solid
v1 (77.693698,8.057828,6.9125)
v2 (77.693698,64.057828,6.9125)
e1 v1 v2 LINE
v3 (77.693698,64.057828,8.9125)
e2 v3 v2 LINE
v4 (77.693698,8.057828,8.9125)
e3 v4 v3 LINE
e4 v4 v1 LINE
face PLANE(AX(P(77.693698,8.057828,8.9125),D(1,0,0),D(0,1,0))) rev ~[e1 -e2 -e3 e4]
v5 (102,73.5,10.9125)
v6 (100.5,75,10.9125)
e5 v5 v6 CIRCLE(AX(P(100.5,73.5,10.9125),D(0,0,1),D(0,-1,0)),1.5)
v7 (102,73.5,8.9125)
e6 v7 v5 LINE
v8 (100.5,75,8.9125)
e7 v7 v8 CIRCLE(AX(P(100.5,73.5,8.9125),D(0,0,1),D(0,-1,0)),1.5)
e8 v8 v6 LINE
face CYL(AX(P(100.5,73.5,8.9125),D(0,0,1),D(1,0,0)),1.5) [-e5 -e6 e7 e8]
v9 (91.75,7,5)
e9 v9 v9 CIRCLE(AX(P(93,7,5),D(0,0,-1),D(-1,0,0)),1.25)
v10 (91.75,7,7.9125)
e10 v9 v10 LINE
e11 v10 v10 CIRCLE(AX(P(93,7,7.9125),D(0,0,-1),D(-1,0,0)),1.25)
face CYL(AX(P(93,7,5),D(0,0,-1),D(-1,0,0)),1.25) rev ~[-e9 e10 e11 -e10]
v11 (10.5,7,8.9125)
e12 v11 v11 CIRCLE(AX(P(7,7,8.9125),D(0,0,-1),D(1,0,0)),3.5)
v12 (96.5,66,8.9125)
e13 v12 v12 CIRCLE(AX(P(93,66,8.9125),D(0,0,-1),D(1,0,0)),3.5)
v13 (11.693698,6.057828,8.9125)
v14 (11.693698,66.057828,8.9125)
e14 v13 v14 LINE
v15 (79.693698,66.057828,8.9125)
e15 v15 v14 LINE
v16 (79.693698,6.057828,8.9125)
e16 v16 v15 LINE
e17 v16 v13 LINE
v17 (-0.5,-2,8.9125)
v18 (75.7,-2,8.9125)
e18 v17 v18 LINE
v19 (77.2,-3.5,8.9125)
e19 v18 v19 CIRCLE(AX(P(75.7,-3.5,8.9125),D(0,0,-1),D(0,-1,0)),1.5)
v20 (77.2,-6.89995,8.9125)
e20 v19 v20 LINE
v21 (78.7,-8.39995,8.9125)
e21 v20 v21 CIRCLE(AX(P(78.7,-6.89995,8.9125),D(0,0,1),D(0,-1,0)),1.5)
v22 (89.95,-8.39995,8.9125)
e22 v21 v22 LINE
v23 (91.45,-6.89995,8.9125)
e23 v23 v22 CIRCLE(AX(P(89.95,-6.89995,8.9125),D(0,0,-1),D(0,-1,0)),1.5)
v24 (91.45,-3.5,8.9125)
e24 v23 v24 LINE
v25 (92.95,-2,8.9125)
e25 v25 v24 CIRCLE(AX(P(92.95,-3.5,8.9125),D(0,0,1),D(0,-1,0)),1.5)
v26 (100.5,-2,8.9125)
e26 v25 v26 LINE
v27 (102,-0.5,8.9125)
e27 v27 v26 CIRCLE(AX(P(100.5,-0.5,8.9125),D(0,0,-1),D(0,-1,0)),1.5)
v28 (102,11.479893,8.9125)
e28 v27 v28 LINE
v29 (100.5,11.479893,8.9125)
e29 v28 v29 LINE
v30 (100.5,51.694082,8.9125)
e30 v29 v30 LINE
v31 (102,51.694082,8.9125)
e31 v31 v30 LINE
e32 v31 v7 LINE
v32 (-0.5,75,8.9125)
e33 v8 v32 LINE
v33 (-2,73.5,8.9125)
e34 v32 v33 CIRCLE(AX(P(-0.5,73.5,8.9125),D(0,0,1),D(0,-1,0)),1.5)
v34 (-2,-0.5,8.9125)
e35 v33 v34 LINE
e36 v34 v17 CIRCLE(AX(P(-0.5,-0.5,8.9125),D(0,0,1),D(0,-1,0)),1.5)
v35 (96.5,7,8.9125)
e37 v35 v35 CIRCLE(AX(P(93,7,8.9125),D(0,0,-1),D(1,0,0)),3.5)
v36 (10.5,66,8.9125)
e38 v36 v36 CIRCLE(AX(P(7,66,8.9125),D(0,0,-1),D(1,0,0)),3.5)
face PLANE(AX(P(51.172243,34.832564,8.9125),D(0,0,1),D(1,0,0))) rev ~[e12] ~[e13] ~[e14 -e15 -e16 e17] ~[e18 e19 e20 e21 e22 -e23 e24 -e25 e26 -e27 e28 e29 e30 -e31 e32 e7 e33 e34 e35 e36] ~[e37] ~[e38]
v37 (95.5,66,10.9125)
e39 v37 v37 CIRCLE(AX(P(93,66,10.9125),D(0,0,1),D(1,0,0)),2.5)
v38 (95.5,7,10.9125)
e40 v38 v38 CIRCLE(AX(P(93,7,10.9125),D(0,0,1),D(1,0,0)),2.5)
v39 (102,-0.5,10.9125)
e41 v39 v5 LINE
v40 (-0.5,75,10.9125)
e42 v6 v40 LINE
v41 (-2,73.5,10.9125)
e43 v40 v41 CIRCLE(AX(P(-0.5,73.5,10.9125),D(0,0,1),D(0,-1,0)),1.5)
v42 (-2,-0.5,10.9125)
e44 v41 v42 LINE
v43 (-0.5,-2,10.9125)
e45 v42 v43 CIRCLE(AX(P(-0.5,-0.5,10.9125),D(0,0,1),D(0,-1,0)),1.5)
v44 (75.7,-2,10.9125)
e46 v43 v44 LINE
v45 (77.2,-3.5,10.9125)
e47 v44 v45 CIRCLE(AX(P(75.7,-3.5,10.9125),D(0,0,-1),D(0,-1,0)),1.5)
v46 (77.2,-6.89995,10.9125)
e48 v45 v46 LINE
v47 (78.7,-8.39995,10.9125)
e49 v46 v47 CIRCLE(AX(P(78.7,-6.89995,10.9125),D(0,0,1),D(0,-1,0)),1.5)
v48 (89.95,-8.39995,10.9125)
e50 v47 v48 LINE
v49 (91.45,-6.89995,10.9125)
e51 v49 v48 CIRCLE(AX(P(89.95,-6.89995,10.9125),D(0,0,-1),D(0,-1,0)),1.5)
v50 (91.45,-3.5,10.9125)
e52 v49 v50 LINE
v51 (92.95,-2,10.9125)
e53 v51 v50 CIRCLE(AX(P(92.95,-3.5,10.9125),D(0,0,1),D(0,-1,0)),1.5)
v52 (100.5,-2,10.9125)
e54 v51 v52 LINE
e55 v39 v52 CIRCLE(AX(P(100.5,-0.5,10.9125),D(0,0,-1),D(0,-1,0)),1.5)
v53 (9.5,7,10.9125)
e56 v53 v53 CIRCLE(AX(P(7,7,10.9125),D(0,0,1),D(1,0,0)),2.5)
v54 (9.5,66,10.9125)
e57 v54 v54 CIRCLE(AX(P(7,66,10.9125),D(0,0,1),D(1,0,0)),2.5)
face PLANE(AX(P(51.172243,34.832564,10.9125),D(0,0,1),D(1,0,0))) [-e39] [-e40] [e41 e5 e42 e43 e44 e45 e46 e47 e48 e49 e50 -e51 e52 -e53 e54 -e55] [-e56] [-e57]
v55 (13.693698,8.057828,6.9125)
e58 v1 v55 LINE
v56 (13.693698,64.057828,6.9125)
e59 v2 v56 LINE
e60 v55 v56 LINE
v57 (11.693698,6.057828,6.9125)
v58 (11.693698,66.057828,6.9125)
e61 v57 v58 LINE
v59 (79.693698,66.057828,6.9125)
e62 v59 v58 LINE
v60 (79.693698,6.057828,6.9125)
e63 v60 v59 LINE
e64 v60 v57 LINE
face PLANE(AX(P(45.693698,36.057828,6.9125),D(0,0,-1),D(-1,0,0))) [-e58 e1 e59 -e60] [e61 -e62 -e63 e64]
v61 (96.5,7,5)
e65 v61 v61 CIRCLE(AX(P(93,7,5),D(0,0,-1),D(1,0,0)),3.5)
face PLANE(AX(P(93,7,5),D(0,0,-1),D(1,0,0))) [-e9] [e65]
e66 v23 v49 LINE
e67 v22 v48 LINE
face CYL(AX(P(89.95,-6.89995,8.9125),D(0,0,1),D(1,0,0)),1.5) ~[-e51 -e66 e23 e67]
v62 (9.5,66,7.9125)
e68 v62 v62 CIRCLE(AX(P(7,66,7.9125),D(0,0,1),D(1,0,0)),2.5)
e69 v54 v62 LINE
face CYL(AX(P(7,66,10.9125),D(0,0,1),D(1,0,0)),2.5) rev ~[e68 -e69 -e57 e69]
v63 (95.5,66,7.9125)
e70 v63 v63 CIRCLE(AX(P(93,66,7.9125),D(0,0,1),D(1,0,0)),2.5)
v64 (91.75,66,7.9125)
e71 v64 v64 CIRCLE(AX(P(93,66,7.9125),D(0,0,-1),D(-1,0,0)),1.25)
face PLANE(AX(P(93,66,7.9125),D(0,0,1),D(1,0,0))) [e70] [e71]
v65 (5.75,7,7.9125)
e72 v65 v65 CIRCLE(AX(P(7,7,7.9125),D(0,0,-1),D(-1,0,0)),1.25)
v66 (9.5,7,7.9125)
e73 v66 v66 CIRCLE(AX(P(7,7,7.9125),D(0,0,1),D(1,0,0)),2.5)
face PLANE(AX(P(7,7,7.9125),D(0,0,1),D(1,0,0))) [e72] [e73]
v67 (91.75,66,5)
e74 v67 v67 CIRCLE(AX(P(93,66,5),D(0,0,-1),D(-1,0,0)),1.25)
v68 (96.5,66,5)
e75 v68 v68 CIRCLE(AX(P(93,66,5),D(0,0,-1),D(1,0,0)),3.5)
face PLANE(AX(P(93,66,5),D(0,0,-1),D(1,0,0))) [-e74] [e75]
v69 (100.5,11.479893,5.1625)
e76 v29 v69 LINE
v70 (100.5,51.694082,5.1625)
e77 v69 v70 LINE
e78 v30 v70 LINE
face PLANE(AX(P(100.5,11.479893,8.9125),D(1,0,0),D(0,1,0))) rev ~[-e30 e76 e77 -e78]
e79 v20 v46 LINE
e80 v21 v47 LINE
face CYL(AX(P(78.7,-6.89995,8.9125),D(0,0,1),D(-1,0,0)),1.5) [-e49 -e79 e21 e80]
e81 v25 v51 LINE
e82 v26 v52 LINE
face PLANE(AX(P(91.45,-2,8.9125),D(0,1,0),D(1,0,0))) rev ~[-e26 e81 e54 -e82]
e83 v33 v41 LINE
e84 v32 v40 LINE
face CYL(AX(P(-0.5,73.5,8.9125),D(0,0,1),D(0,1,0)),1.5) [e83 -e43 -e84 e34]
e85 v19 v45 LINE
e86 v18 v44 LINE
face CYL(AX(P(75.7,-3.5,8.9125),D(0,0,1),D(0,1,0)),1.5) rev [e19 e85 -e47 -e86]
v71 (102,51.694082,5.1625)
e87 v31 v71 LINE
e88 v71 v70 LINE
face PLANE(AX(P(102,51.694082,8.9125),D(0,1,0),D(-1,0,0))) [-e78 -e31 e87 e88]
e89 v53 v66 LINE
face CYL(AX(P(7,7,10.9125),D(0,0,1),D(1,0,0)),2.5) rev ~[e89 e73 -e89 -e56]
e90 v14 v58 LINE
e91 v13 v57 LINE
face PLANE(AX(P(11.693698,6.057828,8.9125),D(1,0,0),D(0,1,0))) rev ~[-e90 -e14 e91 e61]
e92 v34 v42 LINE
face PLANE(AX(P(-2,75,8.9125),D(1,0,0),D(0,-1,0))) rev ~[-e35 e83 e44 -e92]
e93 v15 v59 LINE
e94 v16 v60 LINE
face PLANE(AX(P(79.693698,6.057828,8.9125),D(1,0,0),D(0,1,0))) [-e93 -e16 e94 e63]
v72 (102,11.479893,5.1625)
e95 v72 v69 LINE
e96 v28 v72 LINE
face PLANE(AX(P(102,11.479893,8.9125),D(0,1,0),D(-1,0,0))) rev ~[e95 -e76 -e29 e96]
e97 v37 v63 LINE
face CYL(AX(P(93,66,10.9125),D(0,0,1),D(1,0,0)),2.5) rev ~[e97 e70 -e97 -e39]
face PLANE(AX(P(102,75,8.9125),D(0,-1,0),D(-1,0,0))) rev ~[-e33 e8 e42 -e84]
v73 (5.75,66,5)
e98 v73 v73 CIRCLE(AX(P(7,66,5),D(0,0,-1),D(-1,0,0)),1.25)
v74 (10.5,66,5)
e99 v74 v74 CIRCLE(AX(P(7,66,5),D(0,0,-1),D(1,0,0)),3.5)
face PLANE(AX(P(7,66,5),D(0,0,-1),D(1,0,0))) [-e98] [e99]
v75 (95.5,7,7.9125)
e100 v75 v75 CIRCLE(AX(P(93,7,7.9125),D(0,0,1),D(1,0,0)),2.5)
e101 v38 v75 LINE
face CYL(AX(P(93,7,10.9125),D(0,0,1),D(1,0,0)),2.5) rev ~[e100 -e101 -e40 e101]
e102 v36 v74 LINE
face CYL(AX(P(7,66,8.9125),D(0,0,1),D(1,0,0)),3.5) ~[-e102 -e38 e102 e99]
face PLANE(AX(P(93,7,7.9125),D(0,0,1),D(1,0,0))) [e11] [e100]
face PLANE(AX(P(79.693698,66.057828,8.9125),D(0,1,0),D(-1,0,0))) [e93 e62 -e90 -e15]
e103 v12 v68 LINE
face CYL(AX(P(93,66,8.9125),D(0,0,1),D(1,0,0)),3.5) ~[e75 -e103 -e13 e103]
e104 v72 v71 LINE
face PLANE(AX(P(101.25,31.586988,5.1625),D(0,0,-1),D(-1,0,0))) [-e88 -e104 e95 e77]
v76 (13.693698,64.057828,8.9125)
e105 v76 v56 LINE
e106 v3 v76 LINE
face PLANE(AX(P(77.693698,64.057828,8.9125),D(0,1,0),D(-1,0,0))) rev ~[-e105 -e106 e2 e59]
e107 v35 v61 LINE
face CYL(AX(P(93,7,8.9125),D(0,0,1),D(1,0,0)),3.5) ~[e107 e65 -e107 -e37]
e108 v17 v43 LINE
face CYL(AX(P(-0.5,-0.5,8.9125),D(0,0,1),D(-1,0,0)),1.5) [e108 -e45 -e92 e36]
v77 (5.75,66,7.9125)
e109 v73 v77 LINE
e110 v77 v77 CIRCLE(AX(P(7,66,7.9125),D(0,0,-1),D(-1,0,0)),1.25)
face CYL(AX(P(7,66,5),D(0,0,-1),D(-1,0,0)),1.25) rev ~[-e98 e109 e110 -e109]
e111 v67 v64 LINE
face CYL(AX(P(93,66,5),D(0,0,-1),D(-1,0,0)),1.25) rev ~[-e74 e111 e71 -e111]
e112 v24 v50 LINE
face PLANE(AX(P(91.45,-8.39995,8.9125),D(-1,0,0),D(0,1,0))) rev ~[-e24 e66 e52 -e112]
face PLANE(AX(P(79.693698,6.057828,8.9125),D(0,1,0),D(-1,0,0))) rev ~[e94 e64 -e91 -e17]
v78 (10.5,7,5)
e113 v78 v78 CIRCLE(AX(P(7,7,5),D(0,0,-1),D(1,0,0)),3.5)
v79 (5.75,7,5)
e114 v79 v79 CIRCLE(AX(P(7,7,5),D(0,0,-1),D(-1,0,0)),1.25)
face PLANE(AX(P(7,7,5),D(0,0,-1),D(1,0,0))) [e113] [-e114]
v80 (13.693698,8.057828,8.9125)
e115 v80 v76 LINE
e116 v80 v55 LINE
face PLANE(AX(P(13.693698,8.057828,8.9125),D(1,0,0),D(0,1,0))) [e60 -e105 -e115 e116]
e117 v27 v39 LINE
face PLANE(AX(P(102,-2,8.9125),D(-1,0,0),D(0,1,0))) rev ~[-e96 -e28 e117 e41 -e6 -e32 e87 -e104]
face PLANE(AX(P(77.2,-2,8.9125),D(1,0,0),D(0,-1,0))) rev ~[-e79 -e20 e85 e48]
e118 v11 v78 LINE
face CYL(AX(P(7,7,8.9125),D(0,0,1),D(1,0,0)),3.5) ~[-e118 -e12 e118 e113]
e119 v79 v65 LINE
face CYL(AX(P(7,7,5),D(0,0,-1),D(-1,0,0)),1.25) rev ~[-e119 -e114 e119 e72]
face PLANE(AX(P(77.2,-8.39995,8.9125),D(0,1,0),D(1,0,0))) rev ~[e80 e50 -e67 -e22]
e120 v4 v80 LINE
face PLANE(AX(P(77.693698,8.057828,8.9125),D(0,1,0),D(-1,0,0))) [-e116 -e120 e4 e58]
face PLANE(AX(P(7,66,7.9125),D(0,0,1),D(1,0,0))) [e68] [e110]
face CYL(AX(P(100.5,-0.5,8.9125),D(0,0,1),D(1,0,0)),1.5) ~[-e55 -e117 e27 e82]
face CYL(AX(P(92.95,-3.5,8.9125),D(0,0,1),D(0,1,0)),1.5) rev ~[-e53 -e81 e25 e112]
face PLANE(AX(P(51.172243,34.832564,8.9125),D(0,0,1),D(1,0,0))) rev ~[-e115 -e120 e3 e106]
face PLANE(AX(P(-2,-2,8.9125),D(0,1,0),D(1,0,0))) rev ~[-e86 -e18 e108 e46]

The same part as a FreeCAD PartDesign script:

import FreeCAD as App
import Part
import Sketcher

V = App.Vector
Q = App.Units.Quantity


def edges_at(feature, points):
    """Names of the edges that pass closest to the given points."""
    edges = feature.Shape.Edges
    near = lambda p: min(range(len(edges)), key=lambda i: edges[i].distToShape(Part.Vertex(*p))[0])
    return sorted({f"Edge{near(p) + 1}" for p in points})

doc = App.newDocument("Part")
body = doc.addObject("PartDesign::Body", "Body")

sketch1 = body.newObject("Sketcher::SketchObject", "Sketch")
sketch1.AttachmentSupport = (doc.getObject("XY_Plane"), [""])
sketch1.MapMode = "FlatFace"
sketch1.AttachmentOffset = App.Placement(V(0, 0, 8.9125), App.Rotation())
sketch1.addGeometry(Part.LineSegment(V(102, -2, 0), V(102, 75, 0)), False)
sketch1.addGeometry(Part.LineSegment(V(102, 75, 0), V(-2, 75, 0)), False)
sketch1.addGeometry(Part.LineSegment(V(-2, 75, 0), V(-2, -2, 0)), False)
sketch1.addGeometry(Part.LineSegment(V(-2, -2, 0), V(77, -2, 0)), False)
sketch1.addGeometry(Part.LineSegment(V(77, -2, 0), V(77, -8, 0)), False)
sketch1.addGeometry(Part.LineSegment(V(77, -8, 0), V(91, -8, 0)), False)
sketch1.addGeometry(Part.LineSegment(V(91, -8, 0), V(91, -2, 0)), False)
sketch1.addGeometry(Part.LineSegment(V(91, -2, 0), V(102, -2, 0)), False)
sketch1.addConstraint(Sketcher.Constraint("Coincident", 0, 2, 1, 1))
sketch1.addConstraint(Sketcher.Constraint("Coincident", 1, 2, 2, 1))
sketch1.addConstraint(Sketcher.Constraint("Coincident", 2, 2, 3, 1))
sketch1.addConstraint(Sketcher.Constraint("Coincident", 3, 2, 4, 1))
sketch1.addConstraint(Sketcher.Constraint("Coincident", 4, 2, 5, 1))
sketch1.addConstraint(Sketcher.Constraint("Coincident", 5, 2, 6, 1))
sketch1.addConstraint(Sketcher.Constraint("Coincident", 6, 2, 7, 1))
sketch1.addConstraint(Sketcher.Constraint("Coincident", 7, 2, 0, 1))
sketch1.addConstraint(Sketcher.Constraint("Vertical", 0))
sketch1.addConstraint(Sketcher.Constraint("Horizontal", 1))
sketch1.addConstraint(Sketcher.Constraint("Vertical", 2))
sketch1.addConstraint(Sketcher.Constraint("Horizontal", 3))
sketch1.addConstraint(Sketcher.Constraint("Vertical", 4))
sketch1.addConstraint(Sketcher.Constraint("Horizontal", 5))
sketch1.addConstraint(Sketcher.Constraint("Vertical", 6))
sketch1.addConstraint(Sketcher.Constraint("Horizontal", 7))
sketch1.addConstraint(Sketcher.Constraint("Horizontal", 3, 2, 6, 2))
sketch1.addConstraint(Sketcher.Constraint("DistanceX", 1, 2, 1, 1, Q("104 mm")))
sketch1.addConstraint(Sketcher.Constraint("DistanceY", 0, 1, 0, 2, Q("77 mm")))
sketch1.addConstraint(Sketcher.Constraint("DistanceX", 3, 1, 3, 2, Q("79.2 mm")))
sketch1.addConstraint(Sketcher.Constraint("DistanceX", -1, 1, 0, 2, Q("102 mm")))
sketch1.addConstraint(Sketcher.Constraint("DistanceY", -1, 1, 0, 2, Q("75 mm")))
sketch1.addConstraint(Sketcher.Constraint("DistanceX", 5, 1, 5, 2, Q("14.25 mm")))
sketch1.addConstraint(Sketcher.Constraint("DistanceY", 4, 2, 4, 1, Q("6.39995 mm")))
pad1 = body.newObject("PartDesign::Pad", "Pad")
pad1.Profile = sketch1
pad1.Length = 2

sketch2 = body.newObject("Sketcher::SketchObject", "Sketch001")
sketch2.AttachmentSupport = (doc.getObject("XY_Plane"), [""])
sketch2.MapMode = "FlatFace"
sketch2.AttachmentOffset = App.Placement(V(0, 0, 8.9125), App.Rotation())
sketch2.addGeometry(Part.LineSegment(V(102, 51.7, 0), V(102, 11.5, 0)), False)
sketch2.addGeometry(Part.LineSegment(V(102, 11.5, 0), V(100.5, 11.5, 0)), False)
sketch2.addGeometry(Part.LineSegment(V(100.5, 11.5, 0), V(100.5, 51.7, 0)), False)
sketch2.addGeometry(Part.LineSegment(V(100.5, 51.7, 0), V(102, 51.7, 0)), False)
sketch2.addConstraint(Sketcher.Constraint("Coincident", 0, 2, 1, 1))
sketch2.addConstraint(Sketcher.Constraint("Coincident", 1, 2, 2, 1))
sketch2.addConstraint(Sketcher.Constraint("Coincident", 2, 2, 3, 1))
sketch2.addConstraint(Sketcher.Constraint("Coincident", 3, 2, 0, 1))
sketch2.addConstraint(Sketcher.Constraint("Vertical", 0))
sketch2.addConstraint(Sketcher.Constraint("Horizontal", 1))
sketch2.addConstraint(Sketcher.Constraint("Vertical", 2))
sketch2.addConstraint(Sketcher.Constraint("Horizontal", 3))
sketch2.addConstraint(Sketcher.Constraint("DistanceX", 1, 2, 1, 1, Q("1.5 mm")))
sketch2.addConstraint(Sketcher.Constraint("DistanceX", -1, 1, 0, 2, Q("102 mm")))
sketch2.addConstraint(Sketcher.Constraint("DistanceY", 0, 2, 0, 1, Q("40.214188 mm")))
sketch2.addConstraint(Sketcher.Constraint("DistanceY", -1, 1, 2, 2, Q("51.694082 mm")))
pad2 = body.newObject("PartDesign::Pad", "Pad001")
pad2.Profile = sketch2
pad2.Length = 3.75
pad2.Reversed = True

sketch3 = body.newObject("Sketcher::SketchObject", "Sketch002")
sketch3.AttachmentSupport = (doc.getObject("XY_Plane"), [""])
sketch3.MapMode = "FlatFace"
sketch3.AttachmentOffset = App.Placement(V(0, 0, 8.9125), App.Rotation())
sketch3.addGeometry(Part.LineSegment(V(80, 66, 0), V(80, 6, 0)), False)
sketch3.addGeometry(Part.LineSegment(V(80, 6, 0), V(12, 6, 0)), False)
sketch3.addGeometry(Part.LineSegment(V(12, 6, 0), V(12, 66, 0)), False)
sketch3.addGeometry(Part.LineSegment(V(12, 66, 0), V(80, 66, 0)), False)
sketch3.addGeometry(Part.LineSegment(V(14, 8, 0), V(78, 8, 0)), False)
sketch3.addGeometry(Part.LineSegment(V(78, 8, 0), V(78, 64, 0)), False)
sketch3.addGeometry(Part.LineSegment(V(78, 64, 0), V(14, 64, 0)), False)
sketch3.addGeometry(Part.LineSegment(V(14, 64, 0), V(14, 8, 0)), False)
sketch3.addConstraint(Sketcher.Constraint("Coincident", 0, 2, 1, 1))
sketch3.addConstraint(Sketcher.Constraint("Coincident", 1, 2, 2, 1))
sketch3.addConstraint(Sketcher.Constraint("Coincident", 2, 2, 3, 1))
sketch3.addConstraint(Sketcher.Constraint("Coincident", 3, 2, 0, 1))
sketch3.addConstraint(Sketcher.Constraint("Coincident", 4, 2, 5, 1))
sketch3.addConstraint(Sketcher.Constraint("Coincident", 5, 2, 6, 1))
sketch3.addConstraint(Sketcher.Constraint("Coincident", 6, 2, 7, 1))
sketch3.addConstraint(Sketcher.Constraint("Coincident", 7, 2, 4, 1))
sketch3.addConstraint(Sketcher.Constraint("Vertical", 0))
sketch3.addConstraint(Sketcher.Constraint("Horizontal", 1))
sketch3.addConstraint(Sketcher.Constraint("Vertical", 2))
sketch3.addConstraint(Sketcher.Constraint("Horizontal", 3))
sketch3.addConstraint(Sketcher.Constraint("Horizontal", 4))
sketch3.addConstraint(Sketcher.Constraint("Vertical", 5))
sketch3.addConstraint(Sketcher.Constraint("Horizontal", 6))
sketch3.addConstraint(Sketcher.Constraint("Vertical", 7))
sketch3.addConstraint(Sketcher.Constraint("DistanceX", 1, 2, 1, 1, Q("68 mm")))
sketch3.addConstraint(Sketcher.Constraint("DistanceX", 4, 1, 4, 2, Q("64 mm")))
sketch3.addConstraint(Sketcher.Constraint("DistanceY", 0, 2, 0, 1, Q("60 mm")))
sketch3.addConstraint(Sketcher.Constraint("DistanceY", 5, 1, 5, 2, Q("56 mm")))
sketch3.addConstraint(Sketcher.Constraint("DistanceX", 4, 2, 0, 2, Q("2 mm")))
sketch3.addConstraint(Sketcher.Constraint("DistanceY", 0, 2, 4, 2, Q("2 mm")))
sketch3.addConstraint(Sketcher.Constraint("DistanceX", -1, 1, 0, 2, Q("79.693698 mm")))
sketch3.addConstraint(Sketcher.Constraint("DistanceY", -1, 1, 0, 2, Q("6.057828 mm")))
pad3 = body.newObject("PartDesign::Pad", "Pad002")
pad3.Profile = sketch3
pad3.Length = 2
pad3.Reversed = True
doc.recompute()

fillet = body.newObject("PartDesign::Fillet", "Fillet")
fillet.Base = (pad3, edges_at(pad3, [
    (102, -2, 9.912),
    (102, 75, 9.912),
    (-2, 75, 9.912),
    (91.45, -8.4, 9.912),
    (91.45, -2, 9.912),
    (77.2, -2, 9.912),
    (77.2, -8.4, 9.912),
    (-2, -2, 9.912),
]))
fillet.Radius = 1.5

sketch4 = body.newObject("Sketcher::SketchObject", "Sketch003")
sketch4.AttachmentSupport = (doc.getObject("XY_Plane"), [""])
sketch4.MapMode = "FlatFace"
sketch4.AttachmentOffset = App.Placement(V(0, 0, 8.9125), App.Rotation())
sketch4.addGeometry(Part.Circle(V(7, 66, 0), V(0, 0, 1), 3.5), False)
sketch4.addGeometry(Part.Circle(V(7, 7, 0), V(0, 0, 1), 3.5), False)
sketch4.addGeometry(Part.Circle(V(93, 7, 0), V(0, 0, 1), 3.5), False)
sketch4.addGeometry(Part.Circle(V(93, 66, 0), V(0, 0, 1), 3.5), False)
sketch4.addConstraint(Sketcher.Constraint("Equal", 0, 1))
sketch4.addConstraint(Sketcher.Constraint("Equal", 1, 2))
sketch4.addConstraint(Sketcher.Constraint("Equal", 2, 3))
sketch4.addConstraint(Sketcher.Constraint("Horizontal", 1, 3, 2, 3))
sketch4.addConstraint(Sketcher.Constraint("Horizontal", 0, 3, 3, 3))
sketch4.addConstraint(Sketcher.Constraint("Vertical", 0, 3, 1, 3))
sketch4.addConstraint(Sketcher.Constraint("Vertical", 2, 3, 3, 3))
sketch4.addConstraint(Sketcher.Constraint("Diameter", 0, Q("7 mm")))
sketch4.addConstraint(Sketcher.Constraint("DistanceX", -1, 1, 0, 3, Q("7 mm")))
sketch4.addConstraint(Sketcher.Constraint("DistanceY", -1, 1, 0, 3, Q("66 mm")))
sketch4.addConstraint(Sketcher.Constraint("DistanceY", -1, 1, 1, 3, Q("7 mm")))
sketch4.addConstraint(Sketcher.Constraint("DistanceX", -1, 1, 2, 3, Q("93 mm")))
pad4 = body.newObject("PartDesign::Pad", "Pad003")
pad4.Profile = sketch4
pad4.Length = 3.9125
pad4.Reversed = True

sketch5 = body.newObject("Sketcher::SketchObject", "Sketch004")
sketch5.AttachmentSupport = (doc.getObject("XY_Plane"), [""])
sketch5.MapMode = "FlatFace"
sketch5.AttachmentOffset = App.Placement(V(0, 0, 5), App.Rotation())
sketch5.addGeometry(Part.Circle(V(93, 66, 0), V(0, 0, 1), 1.2), False)
sketch5.addGeometry(Part.Circle(V(7, 66, 0), V(0, 0, 1), 1.2), False)
sketch5.addGeometry(Part.Circle(V(7, 7, 0), V(0, 0, 1), 1.2), False)
sketch5.addGeometry(Part.Circle(V(93, 7, 0), V(0, 0, 1), 1.2), False)
sketch5.addConstraint(Sketcher.Constraint("Equal", 0, 1))
sketch5.addConstraint(Sketcher.Constraint("Equal", 1, 2))
sketch5.addConstraint(Sketcher.Constraint("Equal", 2, 3))
sketch5.addConstraint(Sketcher.Constraint("Horizontal", 0, 3, 1, 3))
sketch5.addConstraint(Sketcher.Constraint("Horizontal", 2, 3, 3, 3))
sketch5.addConstraint(Sketcher.Constraint("Vertical", 1, 3, 2, 3))
sketch5.addConstraint(Sketcher.Constraint("Vertical", 0, 3, 3, 3))
sketch5.addConstraint(Sketcher.Constraint("Diameter", 0, Q("2.5 mm")))
sketch5.addConstraint(Sketcher.Constraint("DistanceX", -1, 1, 0, 3, Q("93 mm")))
sketch5.addConstraint(Sketcher.Constraint("DistanceY", -1, 1, 0, 3, Q("66 mm")))
sketch5.addConstraint(Sketcher.Constraint("DistanceX", -1, 1, 1, 3, Q("7 mm")))
sketch5.addConstraint(Sketcher.Constraint("DistanceY", -1, 1, 2, 3, Q("7 mm")))
pocket1 = body.newObject("PartDesign::Pocket", "Pocket")
pocket1.Profile = sketch5
pocket1.Length = 10
pocket1.Reversed = True

sketch6 = body.newObject("Sketcher::SketchObject", "Sketch005")
sketch6.AttachmentSupport = (doc.getObject("XY_Plane"), [""])
sketch6.MapMode = "FlatFace"
sketch6.AttachmentOffset = App.Placement(V(0, 0, 10.9125), App.Rotation())
sketch6.addGeometry(Part.Circle(V(7, 66, 0), V(0, 0, 1), 2.5), False)
sketch6.addGeometry(Part.Circle(V(93, 66, 0), V(0, 0, 1), 2.5), False)
sketch6.addGeometry(Part.Circle(V(93, 7, 0), V(0, 0, 1), 2.5), False)
sketch6.addGeometry(Part.Circle(V(7, 7, 0), V(0, 0, 1), 2.5), False)
sketch6.addConstraint(Sketcher.Constraint("Equal", 0, 1))
sketch6.addConstraint(Sketcher.Constraint("Equal", 1, 2))
sketch6.addConstraint(Sketcher.Constraint("Equal", 2, 3))
sketch6.addConstraint(Sketcher.Constraint("Horizontal", 0, 3, 1, 3))
sketch6.addConstraint(Sketcher.Constraint("Horizontal", 2, 3, 3, 3))
sketch6.addConstraint(Sketcher.Constraint("Vertical", 1, 3, 2, 3))
sketch6.addConstraint(Sketcher.Constraint("Vertical", 0, 3, 3, 3))
sketch6.addConstraint(Sketcher.Constraint("Diameter", 0, Q("5 mm")))
sketch6.addConstraint(Sketcher.Constraint("DistanceX", -1, 1, 0, 3, Q("7 mm")))
sketch6.addConstraint(Sketcher.Constraint("DistanceY", -1, 1, 0, 3, Q("66 mm")))
sketch6.addConstraint(Sketcher.Constraint("DistanceX", -1, 1, 1, 3, Q("93 mm")))
sketch6.addConstraint(Sketcher.Constraint("DistanceY", -1, 1, 2, 3, Q("7 mm")))
pocket2 = body.newObject("PartDesign::Pocket", "Pocket001")
pocket2.Profile = sketch6
pocket2.Length = 3

doc.recompute()
